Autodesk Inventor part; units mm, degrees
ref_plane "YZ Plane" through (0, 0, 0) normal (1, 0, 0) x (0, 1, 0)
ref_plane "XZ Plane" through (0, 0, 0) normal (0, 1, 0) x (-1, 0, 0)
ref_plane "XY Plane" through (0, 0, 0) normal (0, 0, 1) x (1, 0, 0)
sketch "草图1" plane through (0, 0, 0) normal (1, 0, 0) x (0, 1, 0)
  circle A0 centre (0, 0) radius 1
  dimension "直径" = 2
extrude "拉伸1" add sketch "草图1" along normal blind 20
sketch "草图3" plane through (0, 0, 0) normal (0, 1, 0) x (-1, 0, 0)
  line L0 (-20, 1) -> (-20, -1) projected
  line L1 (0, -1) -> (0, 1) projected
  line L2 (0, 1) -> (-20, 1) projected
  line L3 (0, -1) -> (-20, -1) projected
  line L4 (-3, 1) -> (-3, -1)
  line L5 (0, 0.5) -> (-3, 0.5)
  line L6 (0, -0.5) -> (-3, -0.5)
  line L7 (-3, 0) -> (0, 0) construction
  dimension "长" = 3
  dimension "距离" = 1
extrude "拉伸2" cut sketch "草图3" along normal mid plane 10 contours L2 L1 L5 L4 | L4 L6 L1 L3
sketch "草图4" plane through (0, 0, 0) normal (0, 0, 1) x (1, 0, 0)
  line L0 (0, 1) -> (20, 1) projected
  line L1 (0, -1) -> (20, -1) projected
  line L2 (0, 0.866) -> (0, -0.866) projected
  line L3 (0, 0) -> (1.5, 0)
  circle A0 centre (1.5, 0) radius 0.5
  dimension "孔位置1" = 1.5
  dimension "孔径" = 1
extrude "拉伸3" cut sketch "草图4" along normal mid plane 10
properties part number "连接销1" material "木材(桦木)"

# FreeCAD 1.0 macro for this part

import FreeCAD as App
import Part
import Sketcher
Q = App.Units.Quantity


def add_polygon(sketch, points):
    """Adds a closed chain of lines whose ends are joined by coincident constraints."""
    first, n = sketch.GeometryCount, len(points)
    for a, b in zip(points, points[1:] + points[:1]):
        sketch.addGeometry(Part.LineSegment(App.Vector(*a, 0), App.Vector(*b, 0)), False)
    for i in range(n):
        sketch.addConstraint(Sketcher.Constraint("Coincident", first + i, 2, first + (i + 1) % n, 1))

doc = App.newDocument("Part")
params = doc.addObject("Spreadsheet::Sheet", "Params")
for row, (alias, value) in enumerate([
    ("sketch1_diameter", "2 mm"),
    ("pad1_length", "20 mm"),
    ("sketch2_width", "3 mm"),
    ("pocket1_length", "10 mm"),
    ("sketch3_diameter", "1 mm"),
    ("pocket2_length", "10 mm"),
], start=1):
    params.set(f"A{row}", alias)
    params.set(f"B{row}", "=" + value)
    params.setAlias(f"B{row}", alias)

body = doc.addObject("PartDesign::Body", "Body")

# Sketch on YZ plane
sketch1 = doc.addObject("Sketcher::SketchObject", "Sketch")
body.addObject(sketch1)
sketch1.AttachmentSupport = (doc.YZ_Plane, [""])
sketch1.MapMode = "FlatFace"
sketch1.addGeometry(Part.Circle(App.Vector(0, 0, 0), App.Vector(0, 0, 1), 1), False)
sketch1.addConstraint([
    Sketcher.Constraint("Coincident", 0, 3, -1, 1),
    Sketcher.Constraint("Diameter", 0, Q("2 mm")),
])
sketch1.setExpression("Constraints[1]", "Params.sketch1_diameter")
pad1 = doc.addObject("PartDesign::Pad", "Pad")
body.addObject(pad1)
pad1.Profile = sketch1
pad1.setExpression("Length", "Params.pad1_length")

# Sketch on XZ plane
sketch2 = doc.addObject("Sketcher::SketchObject", "Sketch001")
body.addObject(sketch2)
sketch2.AttachmentSupport = (doc.XZ_Plane, [""])
sketch2.MapMode = "FlatFace"
add_polygon(sketch2, [(0, 1), (3, 1), (3, 0.5), (0, 0.5)])  # lines 0-3
add_polygon(sketch2, [(3, -0.5), (3, -1), (0, -1), (0, -0.5)])  # lines 4-7
sketch2.addConstraint([
    Sketcher.Constraint("Horizontal", 0),
    Sketcher.Constraint("Vertical", 1),
    Sketcher.Constraint("Horizontal", 2),
    Sketcher.Constraint("Vertical", 3),
    Sketcher.Constraint("Vertical", 4),
    Sketcher.Constraint("Horizontal", 5),
    Sketcher.Constraint("Vertical", 6),
    Sketcher.Constraint("Horizontal", 7),
    Sketcher.Constraint("Symmetric", 3, 2, 5, 2, -1, 1),
    Sketcher.Constraint("Symmetric", 2, 2, 6, 2, -1),
    Sketcher.Constraint("Vertical", 1, 2, 4, 2),
    Sketcher.Constraint("DistanceX", 0, 1, 0, 2, Q("3 mm")),
    Sketcher.Constraint("DistanceY", -1, 1, 0, 2, Q("1 mm")),
    Sketcher.Constraint("DistanceY", 6, 2, 2, 2, Q("1 mm")),
])
sketch2.setExpression("Constraints[19]", "Params.sketch2_width")
pocket1 = doc.addObject("PartDesign::Pocket", "Pocket")
body.addObject(pocket1)
pocket1.Profile = sketch2
pocket1.setExpression("Length", "Params.pocket1_length")
pocket1.Midplane = True

# Sketch on XY plane
sketch3 = doc.addObject("Sketcher::SketchObject", "Sketch002")
body.addObject(sketch3)
sketch3.AttachmentSupport = (doc.XY_Plane, [""])
sketch3.MapMode = "FlatFace"
sketch3.addGeometry(Part.Circle(App.Vector(1.5, 0, 0), App.Vector(0, 0, 1), 0.5), False)
sketch3.addConstraint([
    Sketcher.Constraint("PointOnObject", 0, 3, -1),
    Sketcher.Constraint("Diameter", 0, Q("1 mm")),
    Sketcher.Constraint("DistanceX", -1, 1, 0, 3, Q("1.5 mm")),
])
sketch3.setExpression("Constraints[1]", "Params.sketch3_diameter")
pocket2 = doc.addObject("PartDesign::Pocket", "Pocket001")
body.addObject(pocket2)
pocket2.Profile = sketch3
pocket2.setExpression("Length", "Params.pocket2_length")
pocket2.Midplane = True

doc.recompute()
